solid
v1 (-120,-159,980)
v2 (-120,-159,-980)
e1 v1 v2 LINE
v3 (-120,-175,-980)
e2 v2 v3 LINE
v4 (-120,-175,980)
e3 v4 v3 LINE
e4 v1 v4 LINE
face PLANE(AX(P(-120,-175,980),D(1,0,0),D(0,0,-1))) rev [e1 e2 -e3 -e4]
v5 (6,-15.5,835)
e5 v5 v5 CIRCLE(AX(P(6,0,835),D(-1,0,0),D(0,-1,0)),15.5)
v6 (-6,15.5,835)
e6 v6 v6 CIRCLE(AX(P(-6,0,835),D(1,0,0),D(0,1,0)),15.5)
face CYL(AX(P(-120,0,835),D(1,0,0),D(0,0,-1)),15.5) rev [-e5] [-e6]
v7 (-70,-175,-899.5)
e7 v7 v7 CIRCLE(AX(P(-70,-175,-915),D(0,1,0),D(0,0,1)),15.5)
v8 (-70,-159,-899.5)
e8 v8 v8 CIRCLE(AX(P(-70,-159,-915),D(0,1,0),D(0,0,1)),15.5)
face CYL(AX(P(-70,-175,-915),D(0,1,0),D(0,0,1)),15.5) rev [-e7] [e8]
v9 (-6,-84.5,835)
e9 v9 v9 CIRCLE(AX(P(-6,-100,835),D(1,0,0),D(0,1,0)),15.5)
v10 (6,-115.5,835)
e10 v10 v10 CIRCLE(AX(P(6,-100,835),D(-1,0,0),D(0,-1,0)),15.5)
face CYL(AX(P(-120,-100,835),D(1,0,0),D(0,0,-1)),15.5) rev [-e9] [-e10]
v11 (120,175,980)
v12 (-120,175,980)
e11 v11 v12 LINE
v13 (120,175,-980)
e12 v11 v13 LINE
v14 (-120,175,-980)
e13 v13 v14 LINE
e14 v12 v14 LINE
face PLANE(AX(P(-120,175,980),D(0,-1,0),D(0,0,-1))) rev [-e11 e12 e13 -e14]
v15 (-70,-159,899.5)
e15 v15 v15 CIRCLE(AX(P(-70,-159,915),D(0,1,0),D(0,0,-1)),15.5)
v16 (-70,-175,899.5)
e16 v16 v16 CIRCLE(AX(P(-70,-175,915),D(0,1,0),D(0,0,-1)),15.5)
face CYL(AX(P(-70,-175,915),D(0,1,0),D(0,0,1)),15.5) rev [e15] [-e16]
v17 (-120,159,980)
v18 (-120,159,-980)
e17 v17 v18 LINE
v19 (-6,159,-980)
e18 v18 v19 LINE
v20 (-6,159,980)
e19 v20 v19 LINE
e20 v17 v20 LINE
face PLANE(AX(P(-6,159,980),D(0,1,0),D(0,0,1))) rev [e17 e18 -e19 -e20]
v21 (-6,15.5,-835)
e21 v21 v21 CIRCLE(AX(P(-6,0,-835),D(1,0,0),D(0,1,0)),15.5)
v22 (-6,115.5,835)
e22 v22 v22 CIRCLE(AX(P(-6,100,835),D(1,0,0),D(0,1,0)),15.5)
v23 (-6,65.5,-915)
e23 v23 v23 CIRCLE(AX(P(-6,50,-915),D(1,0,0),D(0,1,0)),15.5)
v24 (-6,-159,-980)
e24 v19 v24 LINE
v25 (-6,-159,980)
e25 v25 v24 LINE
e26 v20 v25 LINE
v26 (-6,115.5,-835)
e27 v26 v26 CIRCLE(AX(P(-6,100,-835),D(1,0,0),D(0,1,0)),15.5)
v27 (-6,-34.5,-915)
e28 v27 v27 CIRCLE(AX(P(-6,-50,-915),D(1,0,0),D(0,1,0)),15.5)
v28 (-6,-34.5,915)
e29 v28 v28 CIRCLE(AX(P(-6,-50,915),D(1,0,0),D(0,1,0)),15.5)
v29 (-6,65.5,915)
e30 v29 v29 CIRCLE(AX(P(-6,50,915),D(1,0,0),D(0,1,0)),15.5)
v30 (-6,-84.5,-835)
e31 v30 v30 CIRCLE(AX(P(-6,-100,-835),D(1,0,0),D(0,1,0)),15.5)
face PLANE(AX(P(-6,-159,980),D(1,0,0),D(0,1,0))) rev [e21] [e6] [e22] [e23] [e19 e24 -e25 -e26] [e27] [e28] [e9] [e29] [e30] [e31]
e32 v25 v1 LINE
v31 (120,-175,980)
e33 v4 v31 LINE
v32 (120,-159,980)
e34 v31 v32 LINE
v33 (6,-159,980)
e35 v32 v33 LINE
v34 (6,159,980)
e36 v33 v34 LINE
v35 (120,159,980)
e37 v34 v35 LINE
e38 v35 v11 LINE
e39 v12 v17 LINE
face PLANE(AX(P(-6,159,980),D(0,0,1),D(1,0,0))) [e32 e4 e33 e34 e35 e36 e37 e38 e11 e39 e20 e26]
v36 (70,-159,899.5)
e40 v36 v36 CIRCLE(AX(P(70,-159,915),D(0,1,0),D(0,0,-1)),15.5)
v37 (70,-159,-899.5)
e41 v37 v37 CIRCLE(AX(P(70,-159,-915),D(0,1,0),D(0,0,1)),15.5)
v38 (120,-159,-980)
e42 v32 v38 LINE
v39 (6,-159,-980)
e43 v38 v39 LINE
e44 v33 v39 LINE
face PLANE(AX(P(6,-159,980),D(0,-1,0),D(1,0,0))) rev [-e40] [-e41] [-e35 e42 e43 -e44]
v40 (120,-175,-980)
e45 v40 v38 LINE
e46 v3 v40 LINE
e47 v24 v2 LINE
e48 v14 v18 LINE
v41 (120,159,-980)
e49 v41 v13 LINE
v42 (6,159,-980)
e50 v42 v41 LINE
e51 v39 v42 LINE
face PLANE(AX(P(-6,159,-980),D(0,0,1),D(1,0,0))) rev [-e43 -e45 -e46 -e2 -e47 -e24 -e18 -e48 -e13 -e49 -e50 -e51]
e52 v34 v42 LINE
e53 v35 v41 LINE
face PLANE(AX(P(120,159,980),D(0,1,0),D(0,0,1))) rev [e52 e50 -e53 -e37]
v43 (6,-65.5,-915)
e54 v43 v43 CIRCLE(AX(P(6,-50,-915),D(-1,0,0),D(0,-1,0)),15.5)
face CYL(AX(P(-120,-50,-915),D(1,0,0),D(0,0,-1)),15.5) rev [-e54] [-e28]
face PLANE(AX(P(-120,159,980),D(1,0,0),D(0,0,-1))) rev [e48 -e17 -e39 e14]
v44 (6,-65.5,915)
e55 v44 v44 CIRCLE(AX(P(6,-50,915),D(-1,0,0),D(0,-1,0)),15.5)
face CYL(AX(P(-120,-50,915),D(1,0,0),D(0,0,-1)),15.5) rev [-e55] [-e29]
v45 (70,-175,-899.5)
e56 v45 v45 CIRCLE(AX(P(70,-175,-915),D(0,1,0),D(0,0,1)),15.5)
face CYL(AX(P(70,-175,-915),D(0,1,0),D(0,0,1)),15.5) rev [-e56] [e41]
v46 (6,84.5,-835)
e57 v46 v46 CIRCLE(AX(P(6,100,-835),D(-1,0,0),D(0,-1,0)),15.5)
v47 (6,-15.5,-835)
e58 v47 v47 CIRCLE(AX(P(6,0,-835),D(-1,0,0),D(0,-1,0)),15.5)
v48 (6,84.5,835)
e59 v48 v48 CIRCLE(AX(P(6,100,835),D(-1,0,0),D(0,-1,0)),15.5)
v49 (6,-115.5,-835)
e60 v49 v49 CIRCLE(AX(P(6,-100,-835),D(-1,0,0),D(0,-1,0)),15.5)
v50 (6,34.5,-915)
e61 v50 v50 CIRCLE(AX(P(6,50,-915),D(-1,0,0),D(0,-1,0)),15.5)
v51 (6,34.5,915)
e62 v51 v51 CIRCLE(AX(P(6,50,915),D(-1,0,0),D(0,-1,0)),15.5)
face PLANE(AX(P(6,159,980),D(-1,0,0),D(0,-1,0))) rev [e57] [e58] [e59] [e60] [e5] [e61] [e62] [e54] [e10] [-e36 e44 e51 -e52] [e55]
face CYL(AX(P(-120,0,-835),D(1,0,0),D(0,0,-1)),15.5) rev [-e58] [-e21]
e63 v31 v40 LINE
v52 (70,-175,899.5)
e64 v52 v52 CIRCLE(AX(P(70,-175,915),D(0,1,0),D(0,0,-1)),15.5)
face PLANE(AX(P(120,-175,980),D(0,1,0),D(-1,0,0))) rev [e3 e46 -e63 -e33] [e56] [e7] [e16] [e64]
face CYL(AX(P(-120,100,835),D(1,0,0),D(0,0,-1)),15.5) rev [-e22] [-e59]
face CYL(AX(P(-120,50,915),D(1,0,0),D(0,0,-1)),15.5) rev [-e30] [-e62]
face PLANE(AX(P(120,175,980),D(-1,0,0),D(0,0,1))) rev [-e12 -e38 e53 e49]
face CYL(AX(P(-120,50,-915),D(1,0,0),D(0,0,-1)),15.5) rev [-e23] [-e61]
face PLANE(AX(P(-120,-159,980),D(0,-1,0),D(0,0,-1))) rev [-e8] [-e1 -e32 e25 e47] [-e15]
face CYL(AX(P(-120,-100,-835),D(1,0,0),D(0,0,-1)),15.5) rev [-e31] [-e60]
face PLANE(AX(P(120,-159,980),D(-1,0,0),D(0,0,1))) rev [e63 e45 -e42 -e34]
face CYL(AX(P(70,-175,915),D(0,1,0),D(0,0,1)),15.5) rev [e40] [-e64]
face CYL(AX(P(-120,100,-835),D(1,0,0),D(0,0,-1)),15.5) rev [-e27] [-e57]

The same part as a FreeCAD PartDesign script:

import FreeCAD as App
import Part
import Sketcher

doc = App.newDocument("Part")
body = doc.addObject("PartDesign::Body", "Body")

sketch1 = body.newObject("Sketcher::SketchObject", "Sketch")
sketch1.AttachmentSupport = (doc.getObject("XY_Plane"), [""])
sketch1.MapMode = "FlatFace"
sketch1.addGeometry([
    Part.LineSegment(App.Vector(-120, 159, 0), App.Vector(-6, 159, 0)),
    Part.LineSegment(App.Vector(-6, 159, 0), App.Vector(-6, -159, 0)),
    Part.LineSegment(App.Vector(-6, -159, 0), App.Vector(-120, -159, 0)),
    Part.LineSegment(App.Vector(-120, -159, 0), App.Vector(-120, -175, 0)),
    Part.LineSegment(App.Vector(-120, -175, 0), App.Vector(120, -175, 0)),
    Part.LineSegment(App.Vector(120, -175, 0), App.Vector(120, -159, 0)),
    Part.LineSegment(App.Vector(120, -159, 0), App.Vector(6, -159, 0)),
    Part.LineSegment(App.Vector(6, -159, 0), App.Vector(6, 159, 0)),
    Part.LineSegment(App.Vector(6, 159, 0), App.Vector(120, 159, 0)),
    Part.LineSegment(App.Vector(120, 159, 0), App.Vector(120, 175, 0)),
    Part.LineSegment(App.Vector(120, 175, 0), App.Vector(-120, 175, 0)),
    Part.LineSegment(App.Vector(-120, 175, 0), App.Vector(-120, 159, 0)),
], False)
sketch1.addConstraint([
    Sketcher.Constraint("Coincident", 0, 2, 1, 1),
    Sketcher.Constraint("Coincident", 1, 2, 2, 1),
    Sketcher.Constraint("Coincident", 2, 2, 3, 1),
    Sketcher.Constraint("Coincident", 3, 2, 4, 1),
    Sketcher.Constraint("Coincident", 4, 2, 5, 1),
    Sketcher.Constraint("Coincident", 5, 2, 6, 1),
    Sketcher.Constraint("Coincident", 6, 2, 7, 1),
    Sketcher.Constraint("Coincident", 7, 2, 8, 1),
    Sketcher.Constraint("Coincident", 8, 2, 9, 1),
    Sketcher.Constraint("Coincident", 9, 2, 10, 1),
    Sketcher.Constraint("Coincident", 10, 2, 11, 1),
    Sketcher.Constraint("Coincident", 11, 2, 0, 1),
    Sketcher.Constraint("Horizontal", 0),
    Sketcher.Constraint("Vertical", 1),
    Sketcher.Constraint("Horizontal", 2),
    Sketcher.Constraint("Vertical", 3),
    Sketcher.Constraint("Horizontal", 4),
    Sketcher.Constraint("Vertical", 5),
    Sketcher.Constraint("Horizontal", 6),
    Sketcher.Constraint("Vertical", 7),
    Sketcher.Constraint("Horizontal", 8),
    Sketcher.Constraint("Vertical", 9),
    Sketcher.Constraint("Horizontal", 10),
    Sketcher.Constraint("Vertical", 11),
    Sketcher.Constraint("Symmetric", 0, 2, 6, 2, -1, 1),
    Sketcher.Constraint("Symmetric", 2, 2, 8, 2, -1, 1),
    Sketcher.Constraint("Symmetric", 4, 2, 10, 2, -1, 1),
    Sketcher.Constraint("Symmetric", 2, 2, 5, 2, -2),
    Sketcher.Constraint("DistanceX", 0, 1, 0, 2, 114.0),
    Sketcher.Constraint("DistanceX", 4, 1, 4, 2, 240.0),
    Sketcher.Constraint("DistanceY", 1, 2, 1, 1, 318.0),
    Sketcher.Constraint("DistanceY", 3, 2, 3, 1, 16.0),
])
pad1 = body.newObject("PartDesign::Pad", "Pad")
pad1.Profile = sketch1
pad1.Length = 1960
pad1.Midplane = True

sketch2 = body.newObject("Sketcher::SketchObject", "Sketch001")
sketch2.AttachmentSupport = (doc.getObject("YZ_Plane"), [""])
sketch2.MapMode = "FlatFace"
sketch2.addGeometry([
    Part.Circle(App.Vector(50, 915, 0), App.Vector(0, 0, 1), 16),
    Part.Circle(App.Vector(100, 835, 0), App.Vector(0, 0, 1), 16),
    Part.Circle(App.Vector(0, 835, 0), App.Vector(0, 0, 1), 16),
    Part.Circle(App.Vector(-100, 835, 0), App.Vector(0, 0, 1), 16),
    Part.Circle(App.Vector(-50, 915, 0), App.Vector(0, 0, 1), 16),
    Part.Circle(App.Vector(-50, -915, 0), App.Vector(0, 0, 1), 16),
    Part.Circle(App.Vector(-100, -835, 0), App.Vector(0, 0, 1), 16),
    Part.Circle(App.Vector(0, -835, 0), App.Vector(0, 0, 1), 16),
    Part.Circle(App.Vector(100, -835, 0), App.Vector(0, 0, 1), 16),
    Part.Circle(App.Vector(50, -915, 0), App.Vector(0, 0, 1), 16),
], False)
sketch2.addConstraint([
    Sketcher.Constraint("Equal", 0, 1),
    Sketcher.Constraint("Equal", 1, 2),
    Sketcher.Constraint("Equal", 2, 3),
    Sketcher.Constraint("Equal", 3, 4),
    Sketcher.Constraint("Equal", 4, 5),
    Sketcher.Constraint("Equal", 5, 6),
    Sketcher.Constraint("Equal", 6, 7),
    Sketcher.Constraint("Equal", 7, 8),
    Sketcher.Constraint("Equal", 8, 9),
    Sketcher.Constraint("Symmetric", 0, 3, 5, 3, -1, 1),
    Sketcher.Constraint("Symmetric", 1, 3, 6, 3, -1, 1),
    Sketcher.Constraint("Symmetric", 2, 3, 7, 3, -1, 1),
    Sketcher.Constraint("Symmetric", 3, 3, 8, 3, -1, 1),
    Sketcher.Constraint("Symmetric", 4, 3, 9, 3, -1, 1),
    Sketcher.Constraint("Symmetric", 1, 3, 3, 3, -2),
    Sketcher.Constraint("Symmetric", 0, 3, 4, 3, -2),
    Sketcher.Constraint("PointOnObject", 2, 3, -2),
    Sketcher.Constraint("Horizontal", 1, 3, 2, 3),
    Sketcher.Constraint("Diameter", 0, 31.0),
    Sketcher.Constraint("DistanceX", -1, 1, 0, 3, 50.0),
    Sketcher.Constraint("DistanceY", -1, 1, 0, 3, 915.0),
    Sketcher.Constraint("DistanceX", -1, 1, 1, 3, 100.0),
    Sketcher.Constraint("DistanceY", -1, 1, 1, 3, 835.0),
])
pocket1 = body.newObject("PartDesign::Pocket", "Pocket")
pocket1.Profile = sketch2
pocket1.Type = "ThroughAll"
pocket1.Midplane = True

sketch3 = body.newObject("Sketcher::SketchObject", "Sketch002")
sketch3.AttachmentSupport = (doc.getObject("XZ_Plane"), [""])
sketch3.MapMode = "FlatFace"
sketch3.AttachmentOffset = App.Placement(App.Vector(0, 0, 159), App.Rotation())
sketch3.addGeometry([
    Part.Circle(App.Vector(-70, -915, 0), App.Vector(0, 0, 1), 16),
    Part.Circle(App.Vector(70, -915, 0), App.Vector(0, 0, 1), 16),
    Part.Circle(App.Vector(70, 915, 0), App.Vector(0, 0, 1), 16),
    Part.Circle(App.Vector(-70, 915, 0), App.Vector(0, 0, 1), 16),
], False)
sketch3.addConstraint([
    Sketcher.Constraint("Equal", 0, 1),
    Sketcher.Constraint("Equal", 1, 2),
    Sketcher.Constraint("Equal", 2, 3),
    Sketcher.Constraint("Symmetric", 0, 3, 2, 3, -1, 1),
    Sketcher.Constraint("Symmetric", 1, 3, 3, 3, -1, 1),
    Sketcher.Constraint("Symmetric", 0, 3, 1, 3, -2),
    Sketcher.Constraint("Diameter", 0, 31.0),
    Sketcher.Constraint("DistanceX", 0, 3, -1, 1, 70.0),
    Sketcher.Constraint("DistanceY", 0, 3, -1, 1, 915.0),
])
pocket2 = body.newObject("PartDesign::Pocket", "Pocket001")
pocket2.Profile = sketch3
pocket2.Type = "ThroughAll"
pocket2.Reversed = True

doc.recompute()
